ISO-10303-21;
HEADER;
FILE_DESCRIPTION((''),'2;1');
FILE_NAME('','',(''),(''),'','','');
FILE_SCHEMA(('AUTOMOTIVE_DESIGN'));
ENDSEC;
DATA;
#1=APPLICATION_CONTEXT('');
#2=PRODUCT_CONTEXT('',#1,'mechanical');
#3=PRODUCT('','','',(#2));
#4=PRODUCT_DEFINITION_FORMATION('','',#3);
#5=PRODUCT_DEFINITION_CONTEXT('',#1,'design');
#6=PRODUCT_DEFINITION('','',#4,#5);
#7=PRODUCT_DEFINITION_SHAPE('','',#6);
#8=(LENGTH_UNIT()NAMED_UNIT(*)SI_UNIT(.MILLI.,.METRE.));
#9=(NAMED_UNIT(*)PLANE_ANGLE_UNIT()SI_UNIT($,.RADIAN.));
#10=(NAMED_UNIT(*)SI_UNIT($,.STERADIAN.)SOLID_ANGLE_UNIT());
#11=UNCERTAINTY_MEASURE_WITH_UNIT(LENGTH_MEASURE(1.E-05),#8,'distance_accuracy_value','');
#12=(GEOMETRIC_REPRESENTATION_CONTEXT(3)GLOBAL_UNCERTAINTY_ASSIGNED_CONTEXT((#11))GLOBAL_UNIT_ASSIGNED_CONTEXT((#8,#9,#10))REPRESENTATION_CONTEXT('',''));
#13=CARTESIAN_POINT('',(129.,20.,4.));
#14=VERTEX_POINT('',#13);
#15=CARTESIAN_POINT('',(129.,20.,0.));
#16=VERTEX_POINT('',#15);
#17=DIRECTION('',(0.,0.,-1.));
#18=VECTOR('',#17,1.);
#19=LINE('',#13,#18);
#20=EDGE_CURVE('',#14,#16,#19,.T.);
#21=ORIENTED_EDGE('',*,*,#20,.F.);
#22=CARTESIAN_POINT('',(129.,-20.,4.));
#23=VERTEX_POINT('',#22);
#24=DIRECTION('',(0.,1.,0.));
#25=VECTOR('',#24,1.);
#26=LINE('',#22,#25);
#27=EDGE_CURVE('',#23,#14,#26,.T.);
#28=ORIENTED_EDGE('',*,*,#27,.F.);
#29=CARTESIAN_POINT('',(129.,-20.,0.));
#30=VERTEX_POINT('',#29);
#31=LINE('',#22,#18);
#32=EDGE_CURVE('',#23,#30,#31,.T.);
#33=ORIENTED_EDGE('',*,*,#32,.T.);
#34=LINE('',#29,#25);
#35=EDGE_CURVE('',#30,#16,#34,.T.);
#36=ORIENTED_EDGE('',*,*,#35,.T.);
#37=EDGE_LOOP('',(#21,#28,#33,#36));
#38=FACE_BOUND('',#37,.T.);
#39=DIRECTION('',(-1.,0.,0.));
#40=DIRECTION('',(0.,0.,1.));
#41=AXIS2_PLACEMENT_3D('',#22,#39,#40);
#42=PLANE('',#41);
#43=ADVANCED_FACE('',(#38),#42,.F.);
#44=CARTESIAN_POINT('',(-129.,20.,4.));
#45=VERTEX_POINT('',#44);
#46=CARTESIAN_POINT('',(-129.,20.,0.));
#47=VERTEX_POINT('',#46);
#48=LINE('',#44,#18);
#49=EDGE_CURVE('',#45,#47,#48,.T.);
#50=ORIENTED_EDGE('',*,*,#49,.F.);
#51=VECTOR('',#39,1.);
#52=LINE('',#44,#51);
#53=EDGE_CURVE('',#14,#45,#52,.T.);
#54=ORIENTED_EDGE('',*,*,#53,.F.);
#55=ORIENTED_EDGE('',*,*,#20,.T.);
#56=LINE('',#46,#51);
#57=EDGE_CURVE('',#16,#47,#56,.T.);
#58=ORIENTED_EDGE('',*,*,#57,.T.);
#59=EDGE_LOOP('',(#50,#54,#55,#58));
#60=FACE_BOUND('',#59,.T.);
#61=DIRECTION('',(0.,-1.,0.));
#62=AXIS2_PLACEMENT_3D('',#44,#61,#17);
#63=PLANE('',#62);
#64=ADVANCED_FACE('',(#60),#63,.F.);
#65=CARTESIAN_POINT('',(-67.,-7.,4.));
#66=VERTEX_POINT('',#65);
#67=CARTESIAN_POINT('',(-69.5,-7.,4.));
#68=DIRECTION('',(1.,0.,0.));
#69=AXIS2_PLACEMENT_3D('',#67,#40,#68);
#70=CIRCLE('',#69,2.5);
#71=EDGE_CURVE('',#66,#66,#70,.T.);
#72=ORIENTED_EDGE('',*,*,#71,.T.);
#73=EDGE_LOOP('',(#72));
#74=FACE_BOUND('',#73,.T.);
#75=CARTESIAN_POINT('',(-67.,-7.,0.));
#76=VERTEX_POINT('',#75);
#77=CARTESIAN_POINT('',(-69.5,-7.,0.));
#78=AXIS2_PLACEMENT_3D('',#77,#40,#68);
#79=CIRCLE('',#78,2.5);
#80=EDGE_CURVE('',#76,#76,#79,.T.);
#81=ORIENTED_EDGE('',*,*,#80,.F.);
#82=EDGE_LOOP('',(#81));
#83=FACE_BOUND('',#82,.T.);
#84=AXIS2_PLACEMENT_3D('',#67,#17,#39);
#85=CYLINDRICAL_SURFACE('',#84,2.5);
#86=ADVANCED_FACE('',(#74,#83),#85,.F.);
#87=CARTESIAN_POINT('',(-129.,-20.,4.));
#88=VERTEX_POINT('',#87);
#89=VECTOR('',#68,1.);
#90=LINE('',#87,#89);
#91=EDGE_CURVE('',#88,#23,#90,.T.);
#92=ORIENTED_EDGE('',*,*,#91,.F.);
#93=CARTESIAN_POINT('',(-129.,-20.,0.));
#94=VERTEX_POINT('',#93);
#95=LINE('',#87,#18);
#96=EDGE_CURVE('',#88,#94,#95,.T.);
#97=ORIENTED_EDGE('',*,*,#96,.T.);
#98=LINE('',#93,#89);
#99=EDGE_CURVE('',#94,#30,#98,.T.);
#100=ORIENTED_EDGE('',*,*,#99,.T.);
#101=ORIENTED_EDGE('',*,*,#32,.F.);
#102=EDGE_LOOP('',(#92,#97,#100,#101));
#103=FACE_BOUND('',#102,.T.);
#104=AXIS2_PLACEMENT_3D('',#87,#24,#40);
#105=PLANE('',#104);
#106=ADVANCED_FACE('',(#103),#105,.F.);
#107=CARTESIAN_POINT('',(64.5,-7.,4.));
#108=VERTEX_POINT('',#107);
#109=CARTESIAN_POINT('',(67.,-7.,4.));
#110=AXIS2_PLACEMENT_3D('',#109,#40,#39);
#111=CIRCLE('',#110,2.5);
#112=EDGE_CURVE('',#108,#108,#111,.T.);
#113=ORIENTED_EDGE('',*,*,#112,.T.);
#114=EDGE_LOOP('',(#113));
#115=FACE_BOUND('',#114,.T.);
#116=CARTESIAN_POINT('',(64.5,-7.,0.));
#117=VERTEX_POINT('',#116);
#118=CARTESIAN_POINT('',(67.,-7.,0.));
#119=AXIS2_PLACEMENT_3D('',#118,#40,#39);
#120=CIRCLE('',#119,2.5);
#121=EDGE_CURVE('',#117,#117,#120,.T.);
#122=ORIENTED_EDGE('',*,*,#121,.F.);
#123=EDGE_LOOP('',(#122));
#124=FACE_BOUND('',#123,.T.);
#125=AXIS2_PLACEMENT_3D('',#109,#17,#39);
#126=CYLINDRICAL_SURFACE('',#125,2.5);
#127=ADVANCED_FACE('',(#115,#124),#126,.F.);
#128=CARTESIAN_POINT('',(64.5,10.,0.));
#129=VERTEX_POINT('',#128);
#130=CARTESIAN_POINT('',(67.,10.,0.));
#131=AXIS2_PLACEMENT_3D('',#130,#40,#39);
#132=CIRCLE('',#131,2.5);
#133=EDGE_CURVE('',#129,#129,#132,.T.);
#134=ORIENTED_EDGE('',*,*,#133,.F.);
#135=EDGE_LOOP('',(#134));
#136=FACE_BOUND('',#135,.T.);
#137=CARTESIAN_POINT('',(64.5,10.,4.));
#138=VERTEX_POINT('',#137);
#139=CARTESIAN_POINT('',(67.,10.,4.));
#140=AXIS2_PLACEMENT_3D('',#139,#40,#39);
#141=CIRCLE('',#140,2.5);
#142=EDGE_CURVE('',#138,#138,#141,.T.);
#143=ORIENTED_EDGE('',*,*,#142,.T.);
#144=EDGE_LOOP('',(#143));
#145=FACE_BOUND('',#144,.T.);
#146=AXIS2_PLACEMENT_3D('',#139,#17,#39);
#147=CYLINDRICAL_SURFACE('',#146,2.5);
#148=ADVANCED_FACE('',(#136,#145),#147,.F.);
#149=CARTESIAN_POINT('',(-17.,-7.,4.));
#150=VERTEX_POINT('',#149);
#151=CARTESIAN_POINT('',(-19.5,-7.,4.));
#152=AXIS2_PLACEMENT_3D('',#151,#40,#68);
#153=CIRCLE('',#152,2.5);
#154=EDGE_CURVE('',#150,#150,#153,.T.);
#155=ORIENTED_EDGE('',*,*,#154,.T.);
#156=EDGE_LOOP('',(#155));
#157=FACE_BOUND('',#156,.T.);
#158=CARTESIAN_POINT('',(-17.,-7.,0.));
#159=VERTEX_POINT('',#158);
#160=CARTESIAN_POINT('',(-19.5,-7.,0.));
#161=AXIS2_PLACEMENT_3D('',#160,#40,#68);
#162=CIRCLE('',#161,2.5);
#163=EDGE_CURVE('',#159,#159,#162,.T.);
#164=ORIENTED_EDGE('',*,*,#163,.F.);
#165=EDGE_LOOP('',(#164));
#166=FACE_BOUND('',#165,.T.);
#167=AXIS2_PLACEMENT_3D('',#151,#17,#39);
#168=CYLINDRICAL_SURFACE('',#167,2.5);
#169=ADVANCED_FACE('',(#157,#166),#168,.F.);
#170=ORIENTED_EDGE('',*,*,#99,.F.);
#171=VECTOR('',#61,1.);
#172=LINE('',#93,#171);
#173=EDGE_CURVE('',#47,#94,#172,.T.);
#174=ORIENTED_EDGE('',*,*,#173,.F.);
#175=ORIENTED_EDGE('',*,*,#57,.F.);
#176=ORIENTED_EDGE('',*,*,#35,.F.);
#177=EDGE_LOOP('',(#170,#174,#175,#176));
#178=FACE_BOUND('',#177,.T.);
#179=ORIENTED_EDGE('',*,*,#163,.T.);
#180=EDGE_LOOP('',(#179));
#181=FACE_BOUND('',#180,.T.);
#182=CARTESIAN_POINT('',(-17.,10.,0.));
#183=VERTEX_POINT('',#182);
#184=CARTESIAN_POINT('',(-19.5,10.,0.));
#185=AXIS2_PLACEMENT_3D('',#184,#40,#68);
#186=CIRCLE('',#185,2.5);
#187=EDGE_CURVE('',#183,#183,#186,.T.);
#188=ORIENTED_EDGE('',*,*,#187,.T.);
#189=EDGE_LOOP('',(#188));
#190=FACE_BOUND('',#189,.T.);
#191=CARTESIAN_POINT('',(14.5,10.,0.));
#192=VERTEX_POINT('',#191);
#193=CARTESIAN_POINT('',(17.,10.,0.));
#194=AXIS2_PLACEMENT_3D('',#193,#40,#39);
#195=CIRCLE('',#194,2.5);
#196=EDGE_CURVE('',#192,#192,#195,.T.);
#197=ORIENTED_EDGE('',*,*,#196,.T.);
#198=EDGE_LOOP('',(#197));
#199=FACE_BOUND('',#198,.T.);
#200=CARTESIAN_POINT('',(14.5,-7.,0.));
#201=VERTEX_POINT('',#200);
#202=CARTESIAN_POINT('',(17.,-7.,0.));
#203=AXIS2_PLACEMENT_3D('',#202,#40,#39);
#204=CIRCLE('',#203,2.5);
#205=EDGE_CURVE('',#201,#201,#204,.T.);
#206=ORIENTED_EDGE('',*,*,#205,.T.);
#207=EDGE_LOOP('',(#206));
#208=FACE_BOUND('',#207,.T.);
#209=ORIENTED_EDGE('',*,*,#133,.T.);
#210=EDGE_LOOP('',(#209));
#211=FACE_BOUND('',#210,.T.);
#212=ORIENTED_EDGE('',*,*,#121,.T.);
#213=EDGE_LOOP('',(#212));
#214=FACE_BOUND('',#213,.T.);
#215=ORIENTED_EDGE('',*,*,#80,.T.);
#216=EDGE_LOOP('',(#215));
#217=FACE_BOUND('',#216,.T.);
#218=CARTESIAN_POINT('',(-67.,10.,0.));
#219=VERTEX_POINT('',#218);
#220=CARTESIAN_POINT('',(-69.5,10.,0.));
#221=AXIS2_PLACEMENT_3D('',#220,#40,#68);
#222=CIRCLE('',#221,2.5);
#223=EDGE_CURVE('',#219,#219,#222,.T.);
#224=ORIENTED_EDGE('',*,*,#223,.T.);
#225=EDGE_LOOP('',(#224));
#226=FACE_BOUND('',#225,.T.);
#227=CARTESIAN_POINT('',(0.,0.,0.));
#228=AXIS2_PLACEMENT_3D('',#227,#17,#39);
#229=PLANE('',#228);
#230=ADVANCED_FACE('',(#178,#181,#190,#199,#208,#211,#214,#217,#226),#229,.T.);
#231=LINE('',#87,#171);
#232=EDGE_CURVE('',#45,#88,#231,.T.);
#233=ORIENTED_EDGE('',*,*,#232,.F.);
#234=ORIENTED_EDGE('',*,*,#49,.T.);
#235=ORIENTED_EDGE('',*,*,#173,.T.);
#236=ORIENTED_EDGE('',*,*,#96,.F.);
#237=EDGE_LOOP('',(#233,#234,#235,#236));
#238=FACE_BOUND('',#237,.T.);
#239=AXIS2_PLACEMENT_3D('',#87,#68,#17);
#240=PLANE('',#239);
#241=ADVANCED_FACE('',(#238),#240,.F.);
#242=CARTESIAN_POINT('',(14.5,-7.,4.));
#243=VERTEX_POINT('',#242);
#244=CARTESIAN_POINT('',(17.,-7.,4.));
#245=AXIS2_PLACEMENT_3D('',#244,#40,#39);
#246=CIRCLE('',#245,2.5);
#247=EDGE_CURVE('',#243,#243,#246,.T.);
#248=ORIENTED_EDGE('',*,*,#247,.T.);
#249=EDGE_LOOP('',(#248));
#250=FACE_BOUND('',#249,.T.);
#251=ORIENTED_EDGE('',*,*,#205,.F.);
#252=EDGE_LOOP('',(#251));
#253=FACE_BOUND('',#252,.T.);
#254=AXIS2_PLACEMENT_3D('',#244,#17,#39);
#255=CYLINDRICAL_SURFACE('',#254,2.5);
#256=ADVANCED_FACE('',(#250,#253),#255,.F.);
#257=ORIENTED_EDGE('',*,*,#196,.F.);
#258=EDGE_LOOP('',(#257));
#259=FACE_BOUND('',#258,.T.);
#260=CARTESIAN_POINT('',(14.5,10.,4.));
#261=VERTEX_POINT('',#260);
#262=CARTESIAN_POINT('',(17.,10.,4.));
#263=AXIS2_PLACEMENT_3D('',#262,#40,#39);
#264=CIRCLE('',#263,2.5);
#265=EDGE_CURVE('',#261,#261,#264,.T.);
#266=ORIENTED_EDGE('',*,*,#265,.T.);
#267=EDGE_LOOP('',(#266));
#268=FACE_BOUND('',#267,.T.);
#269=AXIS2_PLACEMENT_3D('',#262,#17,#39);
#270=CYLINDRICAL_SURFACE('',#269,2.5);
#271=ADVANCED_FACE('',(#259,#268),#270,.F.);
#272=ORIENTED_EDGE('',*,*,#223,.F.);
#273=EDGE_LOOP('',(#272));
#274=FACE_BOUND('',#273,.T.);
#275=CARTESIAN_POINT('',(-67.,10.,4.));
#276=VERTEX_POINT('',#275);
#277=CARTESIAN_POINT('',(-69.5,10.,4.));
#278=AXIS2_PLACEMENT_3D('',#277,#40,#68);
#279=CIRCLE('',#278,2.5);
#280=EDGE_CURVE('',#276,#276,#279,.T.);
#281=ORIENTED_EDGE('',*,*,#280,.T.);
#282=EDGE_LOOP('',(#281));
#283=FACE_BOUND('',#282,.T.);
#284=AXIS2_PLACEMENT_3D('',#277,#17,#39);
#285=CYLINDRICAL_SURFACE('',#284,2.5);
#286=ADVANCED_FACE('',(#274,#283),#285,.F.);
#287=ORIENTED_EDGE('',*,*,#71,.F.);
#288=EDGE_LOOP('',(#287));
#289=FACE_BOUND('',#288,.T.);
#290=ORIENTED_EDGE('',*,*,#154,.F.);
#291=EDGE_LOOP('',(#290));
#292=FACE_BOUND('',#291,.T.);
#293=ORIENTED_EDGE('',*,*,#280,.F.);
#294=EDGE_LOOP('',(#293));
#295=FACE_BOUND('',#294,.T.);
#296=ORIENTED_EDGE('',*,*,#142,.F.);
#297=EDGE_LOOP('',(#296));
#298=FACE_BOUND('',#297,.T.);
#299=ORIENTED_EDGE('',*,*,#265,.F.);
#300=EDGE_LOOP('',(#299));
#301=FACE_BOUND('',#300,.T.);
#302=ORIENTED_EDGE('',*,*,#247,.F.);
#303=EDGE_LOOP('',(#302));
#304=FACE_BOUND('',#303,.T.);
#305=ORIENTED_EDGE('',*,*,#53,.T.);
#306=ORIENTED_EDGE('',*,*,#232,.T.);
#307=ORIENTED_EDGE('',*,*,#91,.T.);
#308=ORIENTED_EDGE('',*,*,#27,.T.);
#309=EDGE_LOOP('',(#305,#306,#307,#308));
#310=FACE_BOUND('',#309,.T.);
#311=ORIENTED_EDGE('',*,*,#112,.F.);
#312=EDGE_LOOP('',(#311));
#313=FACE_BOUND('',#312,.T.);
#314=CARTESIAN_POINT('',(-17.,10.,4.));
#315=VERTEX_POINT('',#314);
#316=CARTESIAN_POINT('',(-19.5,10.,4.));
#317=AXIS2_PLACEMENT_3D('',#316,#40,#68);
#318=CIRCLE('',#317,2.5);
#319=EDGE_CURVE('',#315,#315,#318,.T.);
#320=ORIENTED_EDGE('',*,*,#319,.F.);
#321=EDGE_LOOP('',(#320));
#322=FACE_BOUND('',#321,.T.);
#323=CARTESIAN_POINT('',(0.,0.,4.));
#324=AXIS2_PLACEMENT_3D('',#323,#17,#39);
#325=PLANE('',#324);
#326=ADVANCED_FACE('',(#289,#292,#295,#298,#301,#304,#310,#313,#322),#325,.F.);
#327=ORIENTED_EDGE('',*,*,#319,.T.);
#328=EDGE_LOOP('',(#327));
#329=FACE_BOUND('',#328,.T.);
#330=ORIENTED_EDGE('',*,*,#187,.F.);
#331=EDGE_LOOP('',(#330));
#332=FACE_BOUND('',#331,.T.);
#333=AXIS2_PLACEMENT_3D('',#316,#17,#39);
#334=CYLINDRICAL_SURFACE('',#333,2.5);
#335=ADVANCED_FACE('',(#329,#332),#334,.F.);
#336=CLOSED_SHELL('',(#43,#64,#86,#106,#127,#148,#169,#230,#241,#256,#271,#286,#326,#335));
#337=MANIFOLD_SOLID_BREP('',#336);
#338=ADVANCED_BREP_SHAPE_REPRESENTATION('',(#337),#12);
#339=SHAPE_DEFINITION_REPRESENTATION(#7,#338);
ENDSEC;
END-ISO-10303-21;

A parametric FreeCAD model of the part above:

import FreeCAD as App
import Part
import Sketcher
Q = App.Units.Quantity

doc = App.newDocument("Part")
body = doc.addObject("PartDesign::Body", "Body")

# Sketch on XY plane
sketch1 = body.newObject("Sketcher::SketchObject", "Sketch")
sketch1.AttachmentSupport = (doc.getObject("XY_Plane"), [""])
sketch1.MapMode = "FlatFace"
sketch1.addGeometry(Part.LineSegment(App.Vector(-129, 20, 0), App.Vector(-129, -20, 0)), False)
sketch1.addGeometry(Part.LineSegment(App.Vector(-129, -20, 0), App.Vector(129, -20, 0)), False)
sketch1.addGeometry(Part.LineSegment(App.Vector(129, -20, 0), App.Vector(129, 20, 0)), False)
sketch1.addGeometry(Part.LineSegment(App.Vector(129, 20, 0), App.Vector(-129, 20, 0)), False)
sketch1.addGeometry(Part.Circle(App.Vector(-69.5, -7, 0), App.Vector(0, 0, 1), 2.5), False)
sketch1.addGeometry(Part.Circle(App.Vector(-19.5, -7, 0), App.Vector(0, 0, 1), 2.5), False)
sketch1.addGeometry(Part.Circle(App.Vector(17, -7, 0), App.Vector(0, 0, 1), 2.5), False)
sketch1.addGeometry(Part.Circle(App.Vector(67, -7, 0), App.Vector(0, 0, 1), 2.5), False)
sketch1.addGeometry(Part.Circle(App.Vector(-69.5, 10, 0), App.Vector(0, 0, 1), 2.5), False)
sketch1.addGeometry(Part.Circle(App.Vector(-19.5, 10, 0), App.Vector(0, 0, 1), 2.5), False)
sketch1.addGeometry(Part.Circle(App.Vector(17, 10, 0), App.Vector(0, 0, 1), 2.5), False)
sketch1.addGeometry(Part.Circle(App.Vector(67, 10, 0), App.Vector(0, 0, 1), 2.5), False)
sketch1.addConstraint(Sketcher.Constraint("Coincident", 0, 2, 1, 1))
sketch1.addConstraint(Sketcher.Constraint("Coincident", 1, 2, 2, 1))
sketch1.addConstraint(Sketcher.Constraint("Coincident", 2, 2, 3, 1))
sketch1.addConstraint(Sketcher.Constraint("Coincident", 3, 2, 0, 1))
sketch1.addConstraint(Sketcher.Constraint("Vertical", 0))
sketch1.addConstraint(Sketcher.Constraint("Horizontal", 1))
sketch1.addConstraint(Sketcher.Constraint("Vertical", 2))
sketch1.addConstraint(Sketcher.Constraint("Horizontal", 3))
sketch1.addConstraint(Sketcher.Constraint("Equal", 4, 5))
sketch1.addConstraint(Sketcher.Constraint("Equal", 5, 6))
sketch1.addConstraint(Sketcher.Constraint("Equal", 6, 7))
sketch1.addConstraint(Sketcher.Constraint("Equal", 7, 8))
sketch1.addConstraint(Sketcher.Constraint("Equal", 8, 9))
sketch1.addConstraint(Sketcher.Constraint("Equal", 9, 10))
sketch1.addConstraint(Sketcher.Constraint("Equal", 10, 11))
sketch1.addConstraint(Sketcher.Constraint("Symmetric", 0, 2, 2, 2, -1, 1))
sketch1.addConstraint(Sketcher.Constraint("Horizontal", 4, 3, 5, 3))
sketch1.addConstraint(Sketcher.Constraint("Horizontal", 5, 3, 6, 3))
sketch1.addConstraint(Sketcher.Constraint("Horizontal", 6, 3, 7, 3))
sketch1.addConstraint(Sketcher.Constraint("Horizontal", 8, 3, 9, 3))
sketch1.addConstraint(Sketcher.Constraint("Horizontal", 9, 3, 10, 3))
sketch1.addConstraint(Sketcher.Constraint("Horizontal", 10, 3, 11, 3))
sketch1.addConstraint(Sketcher.Constraint("Vertical", 4, 3, 8, 3))
sketch1.addConstraint(Sketcher.Constraint("Vertical", 5, 3, 9, 3))
sketch1.addConstraint(Sketcher.Constraint("Vertical", 6, 3, 10, 3))
sketch1.addConstraint(Sketcher.Constraint("Vertical", 7, 3, 11, 3))
sketch1.addConstraint(Sketcher.Constraint("Diameter", 4, Q("5 mm")))
sketch1.addConstraint(Sketcher.Constraint("DistanceX", 1, 1, 1, 2, Q("258 mm")))
sketch1.addConstraint(Sketcher.Constraint("DistanceY", 0, 2, 0, 1, Q("40 mm")))
sketch1.addConstraint(Sketcher.Constraint("DistanceY", 4, 3, -1, 1, Q("7 mm")))
sketch1.addConstraint(Sketcher.Constraint("DistanceX", -1, 1, 6, 3, Q("17 mm")))
sketch1.addConstraint(Sketcher.Constraint("DistanceX", -1, 1, 7, 3, Q("67 mm")))
sketch1.addConstraint(Sketcher.Constraint("DistanceY", -1, 1, 8, 3, Q("10 mm")))
sketch1.addConstraint(Sketcher.Constraint("DistanceX", 4, 3, 5, 3, Q("50 mm")))
sketch1.addConstraint(Sketcher.Constraint("DistanceX", 4, 3, -1, 1, Q("69.5 mm")))
pad1 = body.newObject("PartDesign::Pad", "Pad")
pad1.Profile = sketch1
pad1.Length = 4

doc.recompute()
